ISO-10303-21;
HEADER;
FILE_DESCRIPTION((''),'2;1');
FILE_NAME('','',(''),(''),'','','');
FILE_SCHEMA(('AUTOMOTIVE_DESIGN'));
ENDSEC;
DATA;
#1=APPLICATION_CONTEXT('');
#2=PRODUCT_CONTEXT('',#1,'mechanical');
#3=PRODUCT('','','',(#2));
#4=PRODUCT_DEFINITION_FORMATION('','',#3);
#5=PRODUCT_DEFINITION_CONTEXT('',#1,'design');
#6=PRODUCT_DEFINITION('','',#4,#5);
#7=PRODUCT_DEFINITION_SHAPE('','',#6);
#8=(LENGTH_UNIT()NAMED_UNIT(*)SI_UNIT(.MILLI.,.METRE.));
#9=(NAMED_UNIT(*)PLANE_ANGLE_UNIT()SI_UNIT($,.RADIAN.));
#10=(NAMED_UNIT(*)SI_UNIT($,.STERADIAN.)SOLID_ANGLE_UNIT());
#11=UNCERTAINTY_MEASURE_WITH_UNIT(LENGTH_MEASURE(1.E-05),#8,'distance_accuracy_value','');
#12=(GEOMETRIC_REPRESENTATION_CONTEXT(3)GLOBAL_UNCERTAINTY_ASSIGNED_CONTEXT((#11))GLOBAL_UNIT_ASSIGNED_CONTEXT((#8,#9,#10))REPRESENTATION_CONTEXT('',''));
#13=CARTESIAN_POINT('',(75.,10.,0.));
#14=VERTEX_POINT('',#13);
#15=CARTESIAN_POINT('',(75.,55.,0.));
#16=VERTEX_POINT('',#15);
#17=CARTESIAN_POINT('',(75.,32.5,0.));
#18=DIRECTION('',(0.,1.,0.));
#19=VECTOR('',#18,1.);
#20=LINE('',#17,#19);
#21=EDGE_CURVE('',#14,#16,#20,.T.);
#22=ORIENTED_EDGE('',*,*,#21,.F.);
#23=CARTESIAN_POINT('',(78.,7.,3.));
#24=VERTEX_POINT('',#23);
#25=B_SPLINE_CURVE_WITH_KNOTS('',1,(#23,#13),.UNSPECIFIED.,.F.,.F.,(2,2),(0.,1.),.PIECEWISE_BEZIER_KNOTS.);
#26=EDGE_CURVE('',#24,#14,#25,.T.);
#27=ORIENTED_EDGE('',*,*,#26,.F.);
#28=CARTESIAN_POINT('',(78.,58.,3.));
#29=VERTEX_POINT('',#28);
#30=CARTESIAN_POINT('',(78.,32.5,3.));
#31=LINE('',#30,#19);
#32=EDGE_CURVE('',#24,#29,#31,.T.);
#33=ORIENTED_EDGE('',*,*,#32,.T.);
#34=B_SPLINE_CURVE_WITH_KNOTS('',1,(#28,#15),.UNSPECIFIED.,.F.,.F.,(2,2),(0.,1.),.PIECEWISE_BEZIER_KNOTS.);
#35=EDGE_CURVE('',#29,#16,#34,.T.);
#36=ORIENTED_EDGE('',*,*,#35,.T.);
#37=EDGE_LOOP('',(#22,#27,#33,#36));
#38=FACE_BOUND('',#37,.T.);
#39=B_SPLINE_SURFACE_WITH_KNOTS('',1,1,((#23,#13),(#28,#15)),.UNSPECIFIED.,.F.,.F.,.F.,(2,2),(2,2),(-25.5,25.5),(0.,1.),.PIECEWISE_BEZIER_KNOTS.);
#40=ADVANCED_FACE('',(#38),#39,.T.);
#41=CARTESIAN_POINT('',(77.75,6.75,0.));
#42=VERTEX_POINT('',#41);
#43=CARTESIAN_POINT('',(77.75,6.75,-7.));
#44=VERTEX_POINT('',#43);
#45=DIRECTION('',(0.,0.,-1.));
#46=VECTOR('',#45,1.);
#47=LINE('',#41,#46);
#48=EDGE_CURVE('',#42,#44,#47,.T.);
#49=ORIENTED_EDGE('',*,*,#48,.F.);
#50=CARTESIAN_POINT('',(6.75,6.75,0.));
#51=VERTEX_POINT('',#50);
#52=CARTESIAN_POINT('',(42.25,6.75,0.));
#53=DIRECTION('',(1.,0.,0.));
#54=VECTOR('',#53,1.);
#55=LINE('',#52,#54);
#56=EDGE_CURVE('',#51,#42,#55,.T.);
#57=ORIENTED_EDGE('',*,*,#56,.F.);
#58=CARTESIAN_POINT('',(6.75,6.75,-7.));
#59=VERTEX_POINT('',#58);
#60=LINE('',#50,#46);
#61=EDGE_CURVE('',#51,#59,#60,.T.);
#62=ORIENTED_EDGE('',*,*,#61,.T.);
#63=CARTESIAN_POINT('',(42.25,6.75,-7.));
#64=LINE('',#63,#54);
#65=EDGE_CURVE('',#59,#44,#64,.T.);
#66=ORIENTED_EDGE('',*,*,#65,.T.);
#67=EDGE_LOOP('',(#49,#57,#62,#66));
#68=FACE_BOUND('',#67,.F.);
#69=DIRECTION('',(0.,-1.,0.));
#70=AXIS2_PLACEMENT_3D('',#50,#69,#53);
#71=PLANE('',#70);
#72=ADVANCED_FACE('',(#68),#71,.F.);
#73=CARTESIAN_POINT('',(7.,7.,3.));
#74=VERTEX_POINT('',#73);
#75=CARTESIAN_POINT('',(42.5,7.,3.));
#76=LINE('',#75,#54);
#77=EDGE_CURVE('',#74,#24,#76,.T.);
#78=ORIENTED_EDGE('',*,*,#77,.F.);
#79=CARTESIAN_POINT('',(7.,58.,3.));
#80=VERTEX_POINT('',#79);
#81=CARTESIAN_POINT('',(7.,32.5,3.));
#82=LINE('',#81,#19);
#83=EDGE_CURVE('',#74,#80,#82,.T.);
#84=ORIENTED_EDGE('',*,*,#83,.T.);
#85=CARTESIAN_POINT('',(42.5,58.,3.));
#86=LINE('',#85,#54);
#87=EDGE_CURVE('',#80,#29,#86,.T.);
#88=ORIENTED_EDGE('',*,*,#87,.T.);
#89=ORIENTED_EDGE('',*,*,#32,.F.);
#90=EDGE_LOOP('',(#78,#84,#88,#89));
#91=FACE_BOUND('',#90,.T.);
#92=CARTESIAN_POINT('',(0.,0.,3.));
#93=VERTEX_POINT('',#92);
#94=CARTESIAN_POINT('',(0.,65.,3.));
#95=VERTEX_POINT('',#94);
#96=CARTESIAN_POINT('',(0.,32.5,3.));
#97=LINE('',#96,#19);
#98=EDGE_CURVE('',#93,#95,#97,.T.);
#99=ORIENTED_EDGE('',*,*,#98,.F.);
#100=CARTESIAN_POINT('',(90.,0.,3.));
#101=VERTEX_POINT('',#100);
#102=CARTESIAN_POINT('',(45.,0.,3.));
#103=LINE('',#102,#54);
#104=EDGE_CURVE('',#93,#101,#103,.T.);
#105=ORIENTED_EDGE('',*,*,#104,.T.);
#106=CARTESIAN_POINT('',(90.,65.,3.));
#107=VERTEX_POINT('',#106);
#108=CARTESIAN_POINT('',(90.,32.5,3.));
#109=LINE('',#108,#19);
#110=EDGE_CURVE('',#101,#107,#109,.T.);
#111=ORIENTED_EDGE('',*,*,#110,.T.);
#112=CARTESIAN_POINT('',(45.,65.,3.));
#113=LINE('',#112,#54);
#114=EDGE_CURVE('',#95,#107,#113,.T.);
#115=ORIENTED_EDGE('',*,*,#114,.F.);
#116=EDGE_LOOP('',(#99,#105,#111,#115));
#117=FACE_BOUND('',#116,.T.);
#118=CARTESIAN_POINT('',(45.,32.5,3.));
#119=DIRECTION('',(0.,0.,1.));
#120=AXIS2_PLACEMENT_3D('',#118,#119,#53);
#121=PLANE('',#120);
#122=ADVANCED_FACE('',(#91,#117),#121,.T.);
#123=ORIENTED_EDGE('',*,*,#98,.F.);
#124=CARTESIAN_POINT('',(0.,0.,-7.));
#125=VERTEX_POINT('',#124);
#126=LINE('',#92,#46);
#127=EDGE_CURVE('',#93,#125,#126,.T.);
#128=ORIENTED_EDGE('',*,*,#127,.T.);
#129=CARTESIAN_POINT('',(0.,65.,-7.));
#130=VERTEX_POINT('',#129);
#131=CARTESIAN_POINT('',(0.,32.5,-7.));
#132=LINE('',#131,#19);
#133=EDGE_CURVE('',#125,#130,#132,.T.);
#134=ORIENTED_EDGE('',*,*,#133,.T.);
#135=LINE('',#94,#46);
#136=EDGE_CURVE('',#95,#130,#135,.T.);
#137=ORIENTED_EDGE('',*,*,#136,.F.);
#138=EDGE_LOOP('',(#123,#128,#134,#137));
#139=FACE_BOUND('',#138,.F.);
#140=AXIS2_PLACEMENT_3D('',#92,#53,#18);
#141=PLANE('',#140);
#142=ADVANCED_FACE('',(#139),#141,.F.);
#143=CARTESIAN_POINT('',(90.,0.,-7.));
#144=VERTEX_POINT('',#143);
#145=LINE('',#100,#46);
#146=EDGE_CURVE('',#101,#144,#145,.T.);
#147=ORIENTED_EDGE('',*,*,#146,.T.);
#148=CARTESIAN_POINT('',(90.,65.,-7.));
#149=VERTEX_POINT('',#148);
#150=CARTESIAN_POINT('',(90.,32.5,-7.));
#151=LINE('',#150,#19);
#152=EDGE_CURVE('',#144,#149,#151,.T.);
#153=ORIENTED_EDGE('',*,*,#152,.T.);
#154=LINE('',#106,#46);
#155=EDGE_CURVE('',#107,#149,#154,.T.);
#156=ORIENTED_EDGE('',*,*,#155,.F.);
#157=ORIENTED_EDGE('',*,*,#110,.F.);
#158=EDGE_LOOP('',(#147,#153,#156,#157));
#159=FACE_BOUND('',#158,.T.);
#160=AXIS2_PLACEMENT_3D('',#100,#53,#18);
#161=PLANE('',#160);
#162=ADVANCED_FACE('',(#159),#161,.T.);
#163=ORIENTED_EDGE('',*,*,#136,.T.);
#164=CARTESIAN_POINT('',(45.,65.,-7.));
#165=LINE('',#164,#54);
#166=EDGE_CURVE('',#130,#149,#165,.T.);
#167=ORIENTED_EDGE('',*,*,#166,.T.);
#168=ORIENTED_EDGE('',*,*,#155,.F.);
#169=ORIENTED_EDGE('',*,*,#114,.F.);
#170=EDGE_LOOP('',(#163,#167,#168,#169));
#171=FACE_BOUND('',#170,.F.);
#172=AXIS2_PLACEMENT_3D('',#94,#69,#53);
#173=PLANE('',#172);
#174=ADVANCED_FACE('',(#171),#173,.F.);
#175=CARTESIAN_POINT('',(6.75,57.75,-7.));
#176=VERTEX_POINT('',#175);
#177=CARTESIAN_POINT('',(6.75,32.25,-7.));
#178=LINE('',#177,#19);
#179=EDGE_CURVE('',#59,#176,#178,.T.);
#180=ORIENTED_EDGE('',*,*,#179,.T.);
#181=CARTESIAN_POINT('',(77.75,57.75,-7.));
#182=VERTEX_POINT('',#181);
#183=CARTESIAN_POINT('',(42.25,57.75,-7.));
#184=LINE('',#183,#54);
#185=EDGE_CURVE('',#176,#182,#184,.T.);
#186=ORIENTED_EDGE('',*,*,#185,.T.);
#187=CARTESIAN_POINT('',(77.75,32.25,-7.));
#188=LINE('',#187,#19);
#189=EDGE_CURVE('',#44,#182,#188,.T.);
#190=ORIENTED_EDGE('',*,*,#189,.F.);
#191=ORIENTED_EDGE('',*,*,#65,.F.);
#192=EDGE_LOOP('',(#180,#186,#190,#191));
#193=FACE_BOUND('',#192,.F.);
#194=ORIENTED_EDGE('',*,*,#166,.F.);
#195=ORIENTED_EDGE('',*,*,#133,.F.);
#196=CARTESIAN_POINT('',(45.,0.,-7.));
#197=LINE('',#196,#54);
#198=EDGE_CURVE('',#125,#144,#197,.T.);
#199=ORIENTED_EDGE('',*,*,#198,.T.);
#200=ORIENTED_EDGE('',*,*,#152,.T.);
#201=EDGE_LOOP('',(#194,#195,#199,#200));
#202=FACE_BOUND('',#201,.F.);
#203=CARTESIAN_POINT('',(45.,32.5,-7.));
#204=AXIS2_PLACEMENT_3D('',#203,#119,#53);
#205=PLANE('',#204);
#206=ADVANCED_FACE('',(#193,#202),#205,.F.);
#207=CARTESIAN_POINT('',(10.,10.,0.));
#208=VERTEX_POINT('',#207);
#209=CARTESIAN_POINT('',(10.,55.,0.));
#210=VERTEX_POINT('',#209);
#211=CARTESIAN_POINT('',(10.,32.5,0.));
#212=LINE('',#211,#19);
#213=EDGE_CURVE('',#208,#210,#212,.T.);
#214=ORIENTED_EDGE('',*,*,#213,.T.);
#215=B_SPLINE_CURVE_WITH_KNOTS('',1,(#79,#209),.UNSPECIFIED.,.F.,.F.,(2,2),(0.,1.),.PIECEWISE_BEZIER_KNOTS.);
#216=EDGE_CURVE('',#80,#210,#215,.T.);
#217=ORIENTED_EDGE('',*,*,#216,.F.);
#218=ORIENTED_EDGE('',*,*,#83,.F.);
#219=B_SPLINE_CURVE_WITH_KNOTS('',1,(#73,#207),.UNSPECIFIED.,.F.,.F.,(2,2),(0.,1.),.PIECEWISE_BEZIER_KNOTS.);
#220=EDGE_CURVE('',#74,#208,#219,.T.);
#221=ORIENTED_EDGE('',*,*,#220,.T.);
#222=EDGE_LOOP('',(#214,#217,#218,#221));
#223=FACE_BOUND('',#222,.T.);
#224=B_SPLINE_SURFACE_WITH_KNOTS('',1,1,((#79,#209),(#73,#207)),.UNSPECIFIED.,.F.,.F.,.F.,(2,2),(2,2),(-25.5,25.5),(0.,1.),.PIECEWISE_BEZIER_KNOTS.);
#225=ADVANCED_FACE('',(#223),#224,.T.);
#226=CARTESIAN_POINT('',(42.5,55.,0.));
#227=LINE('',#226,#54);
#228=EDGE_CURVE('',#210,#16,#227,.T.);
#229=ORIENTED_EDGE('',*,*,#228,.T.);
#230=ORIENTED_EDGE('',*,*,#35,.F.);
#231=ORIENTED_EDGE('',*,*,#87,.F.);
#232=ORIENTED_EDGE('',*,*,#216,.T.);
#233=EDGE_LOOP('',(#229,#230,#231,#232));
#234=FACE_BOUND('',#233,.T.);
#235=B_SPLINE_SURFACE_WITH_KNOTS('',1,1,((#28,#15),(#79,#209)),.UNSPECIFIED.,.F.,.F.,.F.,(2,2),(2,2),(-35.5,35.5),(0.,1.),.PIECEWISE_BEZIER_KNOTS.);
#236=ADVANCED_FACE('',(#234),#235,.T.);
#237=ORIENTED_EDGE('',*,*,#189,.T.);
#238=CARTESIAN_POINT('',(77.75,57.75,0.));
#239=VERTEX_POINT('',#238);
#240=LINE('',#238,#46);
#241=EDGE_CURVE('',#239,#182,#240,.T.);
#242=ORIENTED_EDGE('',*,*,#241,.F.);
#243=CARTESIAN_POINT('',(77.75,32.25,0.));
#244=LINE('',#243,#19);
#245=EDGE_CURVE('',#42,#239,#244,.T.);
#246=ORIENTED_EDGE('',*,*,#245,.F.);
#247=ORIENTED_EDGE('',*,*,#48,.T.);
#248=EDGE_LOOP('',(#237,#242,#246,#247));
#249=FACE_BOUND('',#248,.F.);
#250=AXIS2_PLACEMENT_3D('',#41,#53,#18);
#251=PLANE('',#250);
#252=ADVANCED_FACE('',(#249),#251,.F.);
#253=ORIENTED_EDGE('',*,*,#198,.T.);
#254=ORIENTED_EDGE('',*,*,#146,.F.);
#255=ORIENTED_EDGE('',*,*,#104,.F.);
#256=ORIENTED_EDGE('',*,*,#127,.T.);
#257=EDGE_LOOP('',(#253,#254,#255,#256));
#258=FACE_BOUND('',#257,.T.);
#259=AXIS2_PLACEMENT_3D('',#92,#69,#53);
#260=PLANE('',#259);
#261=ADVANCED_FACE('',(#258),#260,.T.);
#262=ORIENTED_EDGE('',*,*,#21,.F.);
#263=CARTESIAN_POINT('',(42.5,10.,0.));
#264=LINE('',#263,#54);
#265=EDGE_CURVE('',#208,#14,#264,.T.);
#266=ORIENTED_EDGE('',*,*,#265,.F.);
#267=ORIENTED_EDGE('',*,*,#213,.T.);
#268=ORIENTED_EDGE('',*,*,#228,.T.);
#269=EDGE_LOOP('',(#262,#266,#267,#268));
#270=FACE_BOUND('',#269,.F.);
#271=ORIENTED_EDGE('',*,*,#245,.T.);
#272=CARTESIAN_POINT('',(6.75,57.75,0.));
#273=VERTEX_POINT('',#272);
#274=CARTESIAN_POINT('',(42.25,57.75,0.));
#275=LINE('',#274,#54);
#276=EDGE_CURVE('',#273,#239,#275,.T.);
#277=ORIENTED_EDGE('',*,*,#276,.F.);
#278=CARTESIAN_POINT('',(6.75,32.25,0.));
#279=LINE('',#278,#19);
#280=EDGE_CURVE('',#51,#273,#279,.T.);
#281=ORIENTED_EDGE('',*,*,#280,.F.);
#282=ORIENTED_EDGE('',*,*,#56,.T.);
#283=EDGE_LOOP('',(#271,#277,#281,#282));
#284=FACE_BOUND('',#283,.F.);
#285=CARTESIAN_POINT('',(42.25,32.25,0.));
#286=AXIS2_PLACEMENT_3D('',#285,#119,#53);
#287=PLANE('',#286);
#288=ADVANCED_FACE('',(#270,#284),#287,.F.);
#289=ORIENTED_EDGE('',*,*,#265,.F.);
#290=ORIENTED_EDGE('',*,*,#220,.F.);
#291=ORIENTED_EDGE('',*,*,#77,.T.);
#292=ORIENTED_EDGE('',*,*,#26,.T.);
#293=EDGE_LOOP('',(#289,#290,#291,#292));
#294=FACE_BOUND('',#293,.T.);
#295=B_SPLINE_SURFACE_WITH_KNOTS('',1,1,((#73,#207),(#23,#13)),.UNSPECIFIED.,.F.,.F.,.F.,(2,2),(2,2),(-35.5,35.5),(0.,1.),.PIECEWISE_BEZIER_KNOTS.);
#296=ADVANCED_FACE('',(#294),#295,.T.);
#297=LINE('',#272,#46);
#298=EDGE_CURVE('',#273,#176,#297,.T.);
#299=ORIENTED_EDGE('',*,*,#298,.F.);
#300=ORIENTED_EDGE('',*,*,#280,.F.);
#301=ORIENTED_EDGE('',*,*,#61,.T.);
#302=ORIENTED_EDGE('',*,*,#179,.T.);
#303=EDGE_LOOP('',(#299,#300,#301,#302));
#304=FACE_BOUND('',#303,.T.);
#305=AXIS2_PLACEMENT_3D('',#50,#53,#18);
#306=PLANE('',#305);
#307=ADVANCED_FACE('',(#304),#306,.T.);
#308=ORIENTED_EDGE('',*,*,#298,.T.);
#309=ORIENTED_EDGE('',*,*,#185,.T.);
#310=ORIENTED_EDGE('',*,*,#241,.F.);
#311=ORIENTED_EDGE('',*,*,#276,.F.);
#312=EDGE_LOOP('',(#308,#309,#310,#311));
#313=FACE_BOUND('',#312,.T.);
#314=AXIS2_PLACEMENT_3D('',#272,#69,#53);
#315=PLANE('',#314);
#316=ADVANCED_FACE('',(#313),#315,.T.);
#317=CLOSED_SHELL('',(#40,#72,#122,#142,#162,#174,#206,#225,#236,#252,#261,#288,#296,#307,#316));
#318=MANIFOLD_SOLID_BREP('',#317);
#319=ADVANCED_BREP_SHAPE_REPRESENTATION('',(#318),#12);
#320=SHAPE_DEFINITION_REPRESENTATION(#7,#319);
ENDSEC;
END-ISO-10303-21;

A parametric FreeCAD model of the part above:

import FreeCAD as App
import Part
import Sketcher

V = App.Vector
Q = App.Units.Quantity


def add_polygon(sketch, points):
    """Adds a closed chain of lines whose ends are joined by coincident constraints."""
    first, n = sketch.GeometryCount, len(points)
    for a, b in zip(points, points[1:] + points[:1]):
        sketch.addGeometry(Part.LineSegment(App.Vector(*a, 0), App.Vector(*b, 0)), False)
    for i in range(n):
        sketch.addConstraint(Sketcher.Constraint("Coincident", first + i, 2, first + (i + 1) % n, 1))

doc = App.newDocument("Part")
body = doc.addObject("PartDesign::Body", "Body")

# Sketch on XY plane
sketch1 = body.newObject("Sketcher::SketchObject", "Sketch")
sketch1.AttachmentSupport = (doc.getObject("XY_Plane"), [""])
sketch1.MapMode = "FlatFace"
sketch1.AttachmentOffset = App.Placement(V(0, 0, 3), App.Rotation())
add_polygon(sketch1, [(0, 65), (0, 0), (90, 0), (90, 65)])  # lines 0-3
sketch1.addConstraint([
    Sketcher.Constraint("Vertical", 0),
    Sketcher.Constraint("Horizontal", 1),
    Sketcher.Constraint("Vertical", 2),
    Sketcher.Constraint("Horizontal", 3),
    Sketcher.Constraint("Coincident", 0, 2, -1, 1),
    Sketcher.Constraint("DistanceX", 1, 1, 1, 2, Q("90 mm")),
    Sketcher.Constraint("DistanceY", 0, 2, 0, 1, Q("65 mm")),
])
pad1 = body.newObject("PartDesign::Pad", "Pad")
pad1.Profile = sketch1
pad1.Length = 10
pad1.Reversed = True

# Sketch on XY plane
sketch2 = body.newObject("Sketcher::SketchObject", "Sketch001")
sketch2.AttachmentSupport = (doc.getObject("XY_Plane"), [""])
sketch2.MapMode = "FlatFace"
add_polygon(sketch2, [(6.75, 57.75), (6.75, 6.75), (77.75, 6.75), (77.75, 57.75)])  # lines 0-3
sketch2.addConstraint([
    Sketcher.Constraint("Vertical", 0),
    Sketcher.Constraint("Horizontal", 1),
    Sketcher.Constraint("Vertical", 2),
    Sketcher.Constraint("Horizontal", 3),
    Sketcher.Constraint("DistanceX", 1, 1, 1, 2, Q("71 mm")),
    Sketcher.Constraint("DistanceY", 0, 2, 0, 1, Q("51 mm")),
    Sketcher.Constraint("DistanceX", -1, 1, 0, 2, Q("6.75 mm")),
    Sketcher.Constraint("DistanceY", -1, 1, 0, 2, Q("6.75 mm")),
])
pocket1 = body.newObject("PartDesign::Pocket", "Pocket")
pocket1.Profile = sketch2
pocket1.Length = 7

# Sketch on XY plane
sketch3 = body.newObject("Sketcher::SketchObject", "Sketch002")
sketch3.AttachmentSupport = (doc.getObject("XY_Plane"), [""])
sketch3.MapMode = "FlatFace"
sketch3.AttachmentOffset = App.Placement(V(0, 0, 3), App.Rotation())
add_polygon(sketch3, [(7, 58), (7, 7), (78, 7), (78, 58)])  # lines 0-3
sketch3.addConstraint([
    Sketcher.Constraint("Vertical", 0),
    Sketcher.Constraint("Horizontal", 1),
    Sketcher.Constraint("Vertical", 2),
    Sketcher.Constraint("Horizontal", 3),
    Sketcher.Constraint("DistanceX", 1, 1, 1, 2, Q("71 mm")),
    Sketcher.Constraint("DistanceY", 0, 2, 0, 1, Q("51 mm")),
    Sketcher.Constraint("DistanceX", -1, 1, 0, 2, Q("7 mm")),
    Sketcher.Constraint("DistanceY", -1, 1, 0, 2, Q("7 mm")),
])

# Sketch on XY plane
sketch4 = body.newObject("Sketcher::SketchObject", "Sketch003")
sketch4.AttachmentSupport = (doc.getObject("XY_Plane"), [""])
sketch4.MapMode = "FlatFace"
add_polygon(sketch4, [(10, 55), (10, 10), (75, 10), (75, 55)])  # lines 0-3
sketch4.addConstraint([
    Sketcher.Constraint("Vertical", 0),
    Sketcher.Constraint("Horizontal", 1),
    Sketcher.Constraint("Vertical", 2),
    Sketcher.Constraint("Horizontal", 3),
    Sketcher.Constraint("DistanceX", 1, 1, 1, 2, Q("65 mm")),
    Sketcher.Constraint("DistanceY", 0, 2, 0, 1, Q("45 mm")),
    Sketcher.Constraint("DistanceX", -1, 1, 0, 2, Q("10 mm")),
    Sketcher.Constraint("DistanceY", -1, 1, 0, 2, Q("10 mm")),
])

subtractiveloft = body.newObject("PartDesign::SubtractiveLoft", "SubtractiveLoft")
subtractiveloft.Profile = sketch3
subtractiveloft.Sections = [sketch4]

doc.recompute()
